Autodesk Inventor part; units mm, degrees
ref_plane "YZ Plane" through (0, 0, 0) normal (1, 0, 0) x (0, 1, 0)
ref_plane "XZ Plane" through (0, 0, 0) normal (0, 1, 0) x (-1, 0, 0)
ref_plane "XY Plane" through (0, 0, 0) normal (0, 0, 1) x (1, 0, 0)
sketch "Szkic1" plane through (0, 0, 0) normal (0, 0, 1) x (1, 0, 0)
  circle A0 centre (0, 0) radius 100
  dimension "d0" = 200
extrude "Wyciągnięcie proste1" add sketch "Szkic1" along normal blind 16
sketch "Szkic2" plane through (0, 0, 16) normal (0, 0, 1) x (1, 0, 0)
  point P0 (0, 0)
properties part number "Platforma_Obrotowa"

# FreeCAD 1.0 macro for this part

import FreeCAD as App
import Part
import Sketcher
Q = App.Units.Quantity

doc = App.newDocument("Part")
body = doc.addObject("PartDesign::Body", "Body")

sketch1 = body.newObject("Sketcher::SketchObject", "Sketch")
sketch1.AttachmentSupport = (doc.getObject("XY_Plane"), [""])
sketch1.MapMode = "FlatFace"
sketch1.addGeometry(Part.Circle(App.Vector(0, 0, 0), App.Vector(0, 0, 1), 100), False)
sketch1.addConstraint(Sketcher.Constraint("Coincident", 0, 3, -1, 1))
sketch1.addConstraint(Sketcher.Constraint("Diameter", 0, Q("200 mm")))
pad1 = body.newObject("PartDesign::Pad", "Pad")
pad1.Profile = sketch1
pad1.Length = 16

doc.recompute()
